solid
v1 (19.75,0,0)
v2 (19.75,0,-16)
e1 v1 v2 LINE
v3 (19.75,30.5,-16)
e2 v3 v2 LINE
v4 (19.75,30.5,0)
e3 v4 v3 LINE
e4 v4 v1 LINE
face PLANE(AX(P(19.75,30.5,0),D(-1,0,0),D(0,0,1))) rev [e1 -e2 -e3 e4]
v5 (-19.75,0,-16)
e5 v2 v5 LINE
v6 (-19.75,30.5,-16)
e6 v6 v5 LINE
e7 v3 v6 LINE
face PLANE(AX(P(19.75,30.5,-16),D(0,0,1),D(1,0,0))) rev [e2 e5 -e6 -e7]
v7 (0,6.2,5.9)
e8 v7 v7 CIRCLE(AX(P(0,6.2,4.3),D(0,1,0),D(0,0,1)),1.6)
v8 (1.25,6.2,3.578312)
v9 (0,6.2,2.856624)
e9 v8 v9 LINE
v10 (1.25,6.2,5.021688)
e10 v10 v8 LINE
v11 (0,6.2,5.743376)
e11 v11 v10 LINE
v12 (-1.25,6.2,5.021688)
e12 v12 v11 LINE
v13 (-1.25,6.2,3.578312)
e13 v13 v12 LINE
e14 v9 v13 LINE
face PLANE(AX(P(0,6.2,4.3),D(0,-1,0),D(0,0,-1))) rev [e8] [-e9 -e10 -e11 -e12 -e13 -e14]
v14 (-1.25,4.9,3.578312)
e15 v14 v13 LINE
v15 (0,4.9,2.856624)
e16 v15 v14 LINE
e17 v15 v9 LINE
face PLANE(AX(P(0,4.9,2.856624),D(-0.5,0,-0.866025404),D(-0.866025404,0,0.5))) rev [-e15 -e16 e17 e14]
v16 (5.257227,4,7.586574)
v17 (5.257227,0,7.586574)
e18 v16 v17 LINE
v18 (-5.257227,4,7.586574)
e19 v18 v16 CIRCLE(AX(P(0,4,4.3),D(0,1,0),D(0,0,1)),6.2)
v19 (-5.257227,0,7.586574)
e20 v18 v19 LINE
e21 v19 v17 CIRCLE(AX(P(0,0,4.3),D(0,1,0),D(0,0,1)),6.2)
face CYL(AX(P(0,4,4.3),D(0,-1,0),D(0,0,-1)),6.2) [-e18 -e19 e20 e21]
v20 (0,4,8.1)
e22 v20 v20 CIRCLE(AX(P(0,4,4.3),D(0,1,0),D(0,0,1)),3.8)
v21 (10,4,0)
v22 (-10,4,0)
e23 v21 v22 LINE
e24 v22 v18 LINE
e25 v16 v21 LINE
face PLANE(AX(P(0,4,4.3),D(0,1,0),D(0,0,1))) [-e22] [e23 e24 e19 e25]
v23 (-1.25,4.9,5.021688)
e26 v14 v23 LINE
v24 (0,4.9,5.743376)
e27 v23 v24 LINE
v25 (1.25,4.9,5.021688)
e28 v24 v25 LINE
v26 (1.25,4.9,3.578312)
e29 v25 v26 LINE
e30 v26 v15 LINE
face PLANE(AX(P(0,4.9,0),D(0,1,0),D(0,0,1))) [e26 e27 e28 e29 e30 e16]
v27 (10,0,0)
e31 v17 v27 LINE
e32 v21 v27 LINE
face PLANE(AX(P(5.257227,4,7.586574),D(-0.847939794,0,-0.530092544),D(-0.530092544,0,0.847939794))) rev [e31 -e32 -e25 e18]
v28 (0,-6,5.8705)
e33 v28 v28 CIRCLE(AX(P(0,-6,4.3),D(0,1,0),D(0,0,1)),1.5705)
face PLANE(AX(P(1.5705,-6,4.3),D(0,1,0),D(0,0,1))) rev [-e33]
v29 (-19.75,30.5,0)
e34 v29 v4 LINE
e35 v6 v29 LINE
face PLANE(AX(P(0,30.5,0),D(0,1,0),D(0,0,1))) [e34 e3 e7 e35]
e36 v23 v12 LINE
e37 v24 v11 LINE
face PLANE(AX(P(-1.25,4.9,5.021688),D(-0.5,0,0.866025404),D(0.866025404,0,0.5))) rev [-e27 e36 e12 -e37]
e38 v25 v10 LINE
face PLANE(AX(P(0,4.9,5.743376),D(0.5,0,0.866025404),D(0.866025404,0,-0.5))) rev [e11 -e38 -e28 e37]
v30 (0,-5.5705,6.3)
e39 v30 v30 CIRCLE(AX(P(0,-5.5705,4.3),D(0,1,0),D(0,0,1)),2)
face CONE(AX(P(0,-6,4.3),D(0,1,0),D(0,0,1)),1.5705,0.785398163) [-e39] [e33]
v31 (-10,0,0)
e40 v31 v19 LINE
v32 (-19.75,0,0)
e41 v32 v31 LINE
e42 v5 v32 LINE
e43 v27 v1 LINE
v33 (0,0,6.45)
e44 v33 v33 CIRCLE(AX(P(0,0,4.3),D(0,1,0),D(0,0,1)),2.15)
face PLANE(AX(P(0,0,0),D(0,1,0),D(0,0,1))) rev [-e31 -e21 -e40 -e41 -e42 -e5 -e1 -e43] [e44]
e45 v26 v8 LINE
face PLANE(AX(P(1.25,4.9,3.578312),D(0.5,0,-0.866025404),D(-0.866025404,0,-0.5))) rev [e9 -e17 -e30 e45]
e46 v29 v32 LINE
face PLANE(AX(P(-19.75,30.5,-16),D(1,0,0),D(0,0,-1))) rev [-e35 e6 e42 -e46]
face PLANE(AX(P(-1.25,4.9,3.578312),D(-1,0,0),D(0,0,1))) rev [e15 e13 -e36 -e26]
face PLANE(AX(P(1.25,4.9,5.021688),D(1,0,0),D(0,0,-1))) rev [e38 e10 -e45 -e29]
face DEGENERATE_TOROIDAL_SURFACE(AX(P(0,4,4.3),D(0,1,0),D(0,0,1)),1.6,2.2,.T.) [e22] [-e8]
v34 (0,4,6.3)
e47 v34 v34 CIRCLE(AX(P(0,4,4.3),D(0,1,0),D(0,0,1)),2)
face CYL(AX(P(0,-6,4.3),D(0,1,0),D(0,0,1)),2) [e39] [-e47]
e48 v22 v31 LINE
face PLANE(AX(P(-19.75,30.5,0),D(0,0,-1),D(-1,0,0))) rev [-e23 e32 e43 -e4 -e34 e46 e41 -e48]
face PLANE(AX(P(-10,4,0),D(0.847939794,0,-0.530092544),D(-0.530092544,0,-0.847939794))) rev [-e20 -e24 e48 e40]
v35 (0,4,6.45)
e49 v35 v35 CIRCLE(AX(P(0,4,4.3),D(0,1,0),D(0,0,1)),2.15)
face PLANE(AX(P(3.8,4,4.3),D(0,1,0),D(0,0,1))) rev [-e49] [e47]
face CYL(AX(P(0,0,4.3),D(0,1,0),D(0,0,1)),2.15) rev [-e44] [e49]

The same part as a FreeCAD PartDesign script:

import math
import FreeCAD as App
import Part
import Sketcher
Q = App.Units.Quantity


def add_polygon(sketch, points):
    """Adds a closed chain of lines whose ends are joined by coincident constraints."""
    first, n = sketch.GeometryCount, len(points)
    for a, b in zip(points, points[1:] + points[:1]):
        sketch.addGeometry(Part.LineSegment(App.Vector(*a, 0), App.Vector(*b, 0)), False)
    for i in range(n):
        sketch.addConstraint(Sketcher.Constraint("Coincident", first + i, 2, first + (i + 1) % n, 1))

doc = App.newDocument("Part")
body = doc.addObject("PartDesign::Body", "Body")

sketch1 = body.newObject("Sketcher::SketchObject", "Sketch")
sketch1.AttachmentSupport = (doc.getObject("XZ_Plane"), [""])
sketch1.MapMode = "FlatFace"
add_polygon(sketch1, [(-19.75, -16), (-19.75, 0), (19.75, 0), (19.75, -16)])
sketch1.addConstraint([
    Sketcher.Constraint("Vertical", 0),
    Sketcher.Constraint("Horizontal", 1),
    Sketcher.Constraint("Vertical", 2),
    Sketcher.Constraint("Horizontal", 3),
    Sketcher.Constraint("Symmetric", 0, 2, 1, 2, -1, 1),
    Sketcher.Constraint("DistanceY", 0, 1, 0, 2, Q("16 mm")),
    Sketcher.Constraint("DistanceX", 1, 1, 1, 2, Q("39.5 mm")),
])
pad1 = body.newObject("PartDesign::Pad", "Pad")
pad1.Profile = sketch1
pad1.Length = 30.5
pad1.Reversed = True

sketch2 = body.newObject("Sketcher::SketchObject", "Sketch001")
sketch2.AttachmentSupport = (doc.getObject("XZ_Plane"), [""])
sketch2.MapMode = "FlatFace"
sketch2.addGeometry([
    Part.LineSegment(App.Vector(-10, 0, 0), App.Vector(-5.257227, 7.586574, 0)),
    Part.ArcOfCircle(Part.Circle(App.Vector(0, 4.3, 0), App.Vector(0, 0, 1), 6.2), math.radians(32.011708), math.radians(147.988292)),
    Part.LineSegment(App.Vector(5.257227, 7.586574, 0), App.Vector(10, 0, 0)),
    Part.LineSegment(App.Vector(10, 0, 0), App.Vector(-10, 0, 0)),
], False)
sketch2.addConstraint([
    Sketcher.Constraint("Tangent", 0, 2, 1, 2),
    Sketcher.Constraint("Tangent", 1, 1, 2, 1),
    Sketcher.Constraint("Coincident", 2, 2, 3, 1),
    Sketcher.Constraint("Coincident", 3, 2, 0, 1),
    Sketcher.Constraint("Horizontal", 3),
    Sketcher.Constraint("Symmetric", 2, 2, 3, 2, -1, 1),
    Sketcher.Constraint("PointOnObject", 1, 3, -2),
    Sketcher.Constraint("Radius", 1, Q("6.2 mm")),
    Sketcher.Constraint("DistanceX", 3, 2, 3, 1, Q("20 mm")),
    Sketcher.Constraint("DistanceY", -1, 1, 1, 3, Q("4.3 mm")),
])
pad2 = body.newObject("PartDesign::Pad", "Pad001")
pad2.Profile = sketch2
pad2.Length = 4
pad2.Reversed = True

sketch3 = body.newObject("Sketcher::SketchObject", "Sketch002")
sketch3.AttachmentSupport = (doc.getObject("XY_Plane"), [""])
sketch3.MapMode = "FlatFace"
sketch3.AttachmentOffset = App.Placement(App.Vector(0, 0, 4.3), App.Rotation())
add_polygon(sketch3, [(0, 4), (0, 0), (2.15, 0), (2.15, 4)])
sketch3.addConstraint([
    Sketcher.Constraint("Vertical", 0),
    Sketcher.Constraint("Horizontal", 1),
    Sketcher.Constraint("Vertical", 2),
    Sketcher.Constraint("Horizontal", 3),
    Sketcher.Constraint("Coincident", 0, 2, -1, 1),
    Sketcher.Constraint("DistanceY", 0, 2, 0, 1, Q("4 mm")),
    Sketcher.Constraint("DistanceX", 1, 1, 1, 2, Q("2.15 mm")),
])
groove = body.newObject("PartDesign::Groove", "Groove")
groove.Profile = sketch3
groove.ReferenceAxis = (sketch3, ["V_Axis"])
groove.Angle = 360

sketch4 = body.newObject("Sketcher::SketchObject", "Sketch003")
sketch4.AttachmentSupport = (doc.getObject("XY_Plane"), [""])
sketch4.MapMode = "FlatFace"
sketch4.AttachmentOffset = App.Placement(App.Vector(0, 0, 4.3), App.Rotation())
sketch4.addGeometry([
    Part.LineSegment(App.Vector(1.6, 6.2, 0), App.Vector(0, 6.2, 0)),
    Part.LineSegment(App.Vector(0, 6.2, 0), App.Vector(0, -6, 0)),
    Part.LineSegment(App.Vector(0, -6, 0), App.Vector(1.5705, -6, 0)),
    Part.LineSegment(App.Vector(1.5705, -6, 0), App.Vector(2, -5.5705, 0)),
    Part.LineSegment(App.Vector(2, -5.5705, 0), App.Vector(2, 4, 0)),
    Part.LineSegment(App.Vector(2, 4, 0), App.Vector(3.8, 4, 0)),
    Part.ArcOfCircle(Part.Circle(App.Vector(1.6, 4, 0), App.Vector(0, 0, 1), 2.2), math.radians(0), math.radians(90)),
], False)
sketch4.addConstraint([
    Sketcher.Constraint("Coincident", 0, 2, 1, 1),
    Sketcher.Constraint("Coincident", 1, 2, 2, 1),
    Sketcher.Constraint("Coincident", 2, 2, 3, 1),
    Sketcher.Constraint("Coincident", 3, 2, 4, 1),
    Sketcher.Constraint("Coincident", 4, 2, 5, 1),
    Sketcher.Constraint("Coincident", 5, 2, 6, 1),
    Sketcher.Constraint("Tangent", 6, 2, 0, 1),
    Sketcher.Constraint("Horizontal", 0),
    Sketcher.Constraint("Vertical", 1),
    Sketcher.Constraint("Horizontal", 2),
    Sketcher.Constraint("Vertical", 4),
    Sketcher.Constraint("Horizontal", 5),
    Sketcher.Constraint("PointOnObject", 0, 2, -2),
    Sketcher.Constraint("Horizontal", 6, 3, 4, 2),
    Sketcher.Constraint("Radius", 6, Q("2.2 mm")),
    Sketcher.Constraint("Angle", 3, Q("45 deg")),
    Sketcher.Constraint("DistanceX", 0, 2, 0, 1, Q("1.6 mm")),
    Sketcher.Constraint("DistanceX", 5, 1, 5, 2, Q("1.8 mm")),
    Sketcher.Constraint("DistanceY", 1, 2, 1, 1, Q("12.2 mm")),
    Sketcher.Constraint("DistanceY", -1, 1, 6, 3, Q("4 mm")),
    Sketcher.Constraint("DistanceX", 2, 1, 2, 2, Q("1.5705 mm")),
])
revolution = body.newObject("PartDesign::Revolution", "Revolution")
revolution.Profile = sketch4
revolution.ReferenceAxis = (sketch4, ["V_Axis"])
revolution.Angle = 360

sketch5 = body.newObject("Sketcher::SketchObject", "Sketch004")
sketch5.AttachmentSupport = (doc.getObject("XZ_Plane"), [""])
sketch5.MapMode = "FlatFace"
sketch5.AttachmentOffset = App.Placement(App.Vector(0, 0, -6.2), App.Rotation())
add_polygon(sketch5, [(-1.25, 3.578312), (-1.25, 5.021688), (0, 5.743376), (1.25, 5.021688), (1.25, 3.578312), (0, 2.856624)])
sketch5.addConstraint([
    Sketcher.Constraint("Vertical", 0),
    Sketcher.Constraint("Vertical", 3),
    Sketcher.Constraint("Symmetric", 0, 2, 2, 2, -2),
    Sketcher.Constraint("PointOnObject", 1, 2, -2),
    Sketcher.Constraint("PointOnObject", 4, 2, -2),
    Sketcher.Constraint("Parallel", 1, 4),
    Sketcher.Constraint("Parallel", 2, 5),
    Sketcher.Constraint("Angle", 1, Q("30 deg")),
    Sketcher.Constraint("DistanceX", 0, 2, 2, 2, Q("2.5 mm")),
    Sketcher.Constraint("DistanceY", 0, 1, 0, 2, Q("1.443376 mm")),
    Sketcher.Constraint("DistanceY", -1, 1, 0, 2, Q("5.021688 mm")),
])
pocket1 = body.newObject("PartDesign::Pocket", "Pocket")
pocket1.Profile = sketch5
pocket1.Length = 1.3
pocket1.Reversed = True

doc.recompute()
